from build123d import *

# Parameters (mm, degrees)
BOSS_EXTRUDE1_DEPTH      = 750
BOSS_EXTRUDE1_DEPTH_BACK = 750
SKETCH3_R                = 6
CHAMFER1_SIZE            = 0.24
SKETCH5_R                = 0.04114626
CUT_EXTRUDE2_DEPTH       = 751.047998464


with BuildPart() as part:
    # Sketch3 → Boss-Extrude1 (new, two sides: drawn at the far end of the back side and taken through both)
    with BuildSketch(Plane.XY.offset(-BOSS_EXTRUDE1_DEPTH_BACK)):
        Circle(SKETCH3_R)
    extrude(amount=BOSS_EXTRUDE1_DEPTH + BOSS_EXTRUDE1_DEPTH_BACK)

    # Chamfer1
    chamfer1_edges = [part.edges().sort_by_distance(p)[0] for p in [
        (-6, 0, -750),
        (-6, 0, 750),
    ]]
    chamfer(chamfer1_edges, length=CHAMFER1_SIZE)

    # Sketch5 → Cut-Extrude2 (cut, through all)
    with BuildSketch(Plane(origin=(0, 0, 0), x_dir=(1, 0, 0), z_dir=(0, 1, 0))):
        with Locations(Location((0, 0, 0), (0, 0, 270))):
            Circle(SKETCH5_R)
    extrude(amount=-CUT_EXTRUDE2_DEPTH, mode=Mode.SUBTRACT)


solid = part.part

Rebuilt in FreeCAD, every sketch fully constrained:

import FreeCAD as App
import Part
import Sketcher
from FreeCAD import Vector
Q = App.Units.Quantity


def edges_at(feature, points):
    """Names of the edges that pass closest to the given points."""
    edges = feature.Shape.Edges
    near = lambda p: min(range(len(edges)), key=lambda i: edges[i].distToShape(Part.Vertex(*p))[0])
    return sorted({f"Edge{near(p) + 1}" for p in points})

doc = App.newDocument("Part")
body = doc.addObject("PartDesign::Body", "Body")

# Sketch on XY plane
sketch1 = doc.addObject("Sketcher::SketchObject", "Sketch")
body.addObject(sketch1)
sketch1.AttachmentSupport = (doc.XY_Plane, [""])
sketch1.MapMode = "FlatFace"
sketch1.addGeometry(Part.Circle(Vector(0, 0, 0), Vector(0, 0, 1), 6), False)
sketch1.addConstraint([
    Sketcher.Constraint("Coincident", 0, 3, -1, 1),
    Sketcher.Constraint("Diameter", 0, Q("12 mm")),
])
pad1 = doc.addObject("PartDesign::Pad", "Pad")
body.addObject(pad1)
pad1.Profile = sketch1
pad1.Type = "TwoLengths"
pad1.Length = 750
pad1.Length2 = 750
doc.recompute()

chamfer = doc.addObject("PartDesign::Chamfer", "Chamfer")
body.addObject(chamfer)
chamfer.Base = (pad1, edges_at(pad1, [(-6, 0, -750), (-6, 0, 750)]))
chamfer.Size = 0.24

# Sketch on XZ plane
sketch2 = doc.addObject("Sketcher::SketchObject", "Sketch001")
body.addObject(sketch2)
sketch2.AttachmentSupport = (doc.XZ_Plane, [""])
sketch2.MapMode = "FlatFace"
sketch2.addGeometry(Part.Circle(Vector(0, 0, 0), Vector(0, 0, 1), 0.041), False)
sketch2.addConstraint([
    Sketcher.Constraint("Coincident", 0, 3, -1, 1),
    Sketcher.Constraint("Diameter", 0, Q("0.082293 mm")),
])
pocket1 = doc.addObject("PartDesign::Pocket", "Pocket")
body.addObject(pocket1)
pocket1.Profile = sketch2
pocket1.Type = "ThroughAll"
pocket1.Reversed = True

doc.recompute()
